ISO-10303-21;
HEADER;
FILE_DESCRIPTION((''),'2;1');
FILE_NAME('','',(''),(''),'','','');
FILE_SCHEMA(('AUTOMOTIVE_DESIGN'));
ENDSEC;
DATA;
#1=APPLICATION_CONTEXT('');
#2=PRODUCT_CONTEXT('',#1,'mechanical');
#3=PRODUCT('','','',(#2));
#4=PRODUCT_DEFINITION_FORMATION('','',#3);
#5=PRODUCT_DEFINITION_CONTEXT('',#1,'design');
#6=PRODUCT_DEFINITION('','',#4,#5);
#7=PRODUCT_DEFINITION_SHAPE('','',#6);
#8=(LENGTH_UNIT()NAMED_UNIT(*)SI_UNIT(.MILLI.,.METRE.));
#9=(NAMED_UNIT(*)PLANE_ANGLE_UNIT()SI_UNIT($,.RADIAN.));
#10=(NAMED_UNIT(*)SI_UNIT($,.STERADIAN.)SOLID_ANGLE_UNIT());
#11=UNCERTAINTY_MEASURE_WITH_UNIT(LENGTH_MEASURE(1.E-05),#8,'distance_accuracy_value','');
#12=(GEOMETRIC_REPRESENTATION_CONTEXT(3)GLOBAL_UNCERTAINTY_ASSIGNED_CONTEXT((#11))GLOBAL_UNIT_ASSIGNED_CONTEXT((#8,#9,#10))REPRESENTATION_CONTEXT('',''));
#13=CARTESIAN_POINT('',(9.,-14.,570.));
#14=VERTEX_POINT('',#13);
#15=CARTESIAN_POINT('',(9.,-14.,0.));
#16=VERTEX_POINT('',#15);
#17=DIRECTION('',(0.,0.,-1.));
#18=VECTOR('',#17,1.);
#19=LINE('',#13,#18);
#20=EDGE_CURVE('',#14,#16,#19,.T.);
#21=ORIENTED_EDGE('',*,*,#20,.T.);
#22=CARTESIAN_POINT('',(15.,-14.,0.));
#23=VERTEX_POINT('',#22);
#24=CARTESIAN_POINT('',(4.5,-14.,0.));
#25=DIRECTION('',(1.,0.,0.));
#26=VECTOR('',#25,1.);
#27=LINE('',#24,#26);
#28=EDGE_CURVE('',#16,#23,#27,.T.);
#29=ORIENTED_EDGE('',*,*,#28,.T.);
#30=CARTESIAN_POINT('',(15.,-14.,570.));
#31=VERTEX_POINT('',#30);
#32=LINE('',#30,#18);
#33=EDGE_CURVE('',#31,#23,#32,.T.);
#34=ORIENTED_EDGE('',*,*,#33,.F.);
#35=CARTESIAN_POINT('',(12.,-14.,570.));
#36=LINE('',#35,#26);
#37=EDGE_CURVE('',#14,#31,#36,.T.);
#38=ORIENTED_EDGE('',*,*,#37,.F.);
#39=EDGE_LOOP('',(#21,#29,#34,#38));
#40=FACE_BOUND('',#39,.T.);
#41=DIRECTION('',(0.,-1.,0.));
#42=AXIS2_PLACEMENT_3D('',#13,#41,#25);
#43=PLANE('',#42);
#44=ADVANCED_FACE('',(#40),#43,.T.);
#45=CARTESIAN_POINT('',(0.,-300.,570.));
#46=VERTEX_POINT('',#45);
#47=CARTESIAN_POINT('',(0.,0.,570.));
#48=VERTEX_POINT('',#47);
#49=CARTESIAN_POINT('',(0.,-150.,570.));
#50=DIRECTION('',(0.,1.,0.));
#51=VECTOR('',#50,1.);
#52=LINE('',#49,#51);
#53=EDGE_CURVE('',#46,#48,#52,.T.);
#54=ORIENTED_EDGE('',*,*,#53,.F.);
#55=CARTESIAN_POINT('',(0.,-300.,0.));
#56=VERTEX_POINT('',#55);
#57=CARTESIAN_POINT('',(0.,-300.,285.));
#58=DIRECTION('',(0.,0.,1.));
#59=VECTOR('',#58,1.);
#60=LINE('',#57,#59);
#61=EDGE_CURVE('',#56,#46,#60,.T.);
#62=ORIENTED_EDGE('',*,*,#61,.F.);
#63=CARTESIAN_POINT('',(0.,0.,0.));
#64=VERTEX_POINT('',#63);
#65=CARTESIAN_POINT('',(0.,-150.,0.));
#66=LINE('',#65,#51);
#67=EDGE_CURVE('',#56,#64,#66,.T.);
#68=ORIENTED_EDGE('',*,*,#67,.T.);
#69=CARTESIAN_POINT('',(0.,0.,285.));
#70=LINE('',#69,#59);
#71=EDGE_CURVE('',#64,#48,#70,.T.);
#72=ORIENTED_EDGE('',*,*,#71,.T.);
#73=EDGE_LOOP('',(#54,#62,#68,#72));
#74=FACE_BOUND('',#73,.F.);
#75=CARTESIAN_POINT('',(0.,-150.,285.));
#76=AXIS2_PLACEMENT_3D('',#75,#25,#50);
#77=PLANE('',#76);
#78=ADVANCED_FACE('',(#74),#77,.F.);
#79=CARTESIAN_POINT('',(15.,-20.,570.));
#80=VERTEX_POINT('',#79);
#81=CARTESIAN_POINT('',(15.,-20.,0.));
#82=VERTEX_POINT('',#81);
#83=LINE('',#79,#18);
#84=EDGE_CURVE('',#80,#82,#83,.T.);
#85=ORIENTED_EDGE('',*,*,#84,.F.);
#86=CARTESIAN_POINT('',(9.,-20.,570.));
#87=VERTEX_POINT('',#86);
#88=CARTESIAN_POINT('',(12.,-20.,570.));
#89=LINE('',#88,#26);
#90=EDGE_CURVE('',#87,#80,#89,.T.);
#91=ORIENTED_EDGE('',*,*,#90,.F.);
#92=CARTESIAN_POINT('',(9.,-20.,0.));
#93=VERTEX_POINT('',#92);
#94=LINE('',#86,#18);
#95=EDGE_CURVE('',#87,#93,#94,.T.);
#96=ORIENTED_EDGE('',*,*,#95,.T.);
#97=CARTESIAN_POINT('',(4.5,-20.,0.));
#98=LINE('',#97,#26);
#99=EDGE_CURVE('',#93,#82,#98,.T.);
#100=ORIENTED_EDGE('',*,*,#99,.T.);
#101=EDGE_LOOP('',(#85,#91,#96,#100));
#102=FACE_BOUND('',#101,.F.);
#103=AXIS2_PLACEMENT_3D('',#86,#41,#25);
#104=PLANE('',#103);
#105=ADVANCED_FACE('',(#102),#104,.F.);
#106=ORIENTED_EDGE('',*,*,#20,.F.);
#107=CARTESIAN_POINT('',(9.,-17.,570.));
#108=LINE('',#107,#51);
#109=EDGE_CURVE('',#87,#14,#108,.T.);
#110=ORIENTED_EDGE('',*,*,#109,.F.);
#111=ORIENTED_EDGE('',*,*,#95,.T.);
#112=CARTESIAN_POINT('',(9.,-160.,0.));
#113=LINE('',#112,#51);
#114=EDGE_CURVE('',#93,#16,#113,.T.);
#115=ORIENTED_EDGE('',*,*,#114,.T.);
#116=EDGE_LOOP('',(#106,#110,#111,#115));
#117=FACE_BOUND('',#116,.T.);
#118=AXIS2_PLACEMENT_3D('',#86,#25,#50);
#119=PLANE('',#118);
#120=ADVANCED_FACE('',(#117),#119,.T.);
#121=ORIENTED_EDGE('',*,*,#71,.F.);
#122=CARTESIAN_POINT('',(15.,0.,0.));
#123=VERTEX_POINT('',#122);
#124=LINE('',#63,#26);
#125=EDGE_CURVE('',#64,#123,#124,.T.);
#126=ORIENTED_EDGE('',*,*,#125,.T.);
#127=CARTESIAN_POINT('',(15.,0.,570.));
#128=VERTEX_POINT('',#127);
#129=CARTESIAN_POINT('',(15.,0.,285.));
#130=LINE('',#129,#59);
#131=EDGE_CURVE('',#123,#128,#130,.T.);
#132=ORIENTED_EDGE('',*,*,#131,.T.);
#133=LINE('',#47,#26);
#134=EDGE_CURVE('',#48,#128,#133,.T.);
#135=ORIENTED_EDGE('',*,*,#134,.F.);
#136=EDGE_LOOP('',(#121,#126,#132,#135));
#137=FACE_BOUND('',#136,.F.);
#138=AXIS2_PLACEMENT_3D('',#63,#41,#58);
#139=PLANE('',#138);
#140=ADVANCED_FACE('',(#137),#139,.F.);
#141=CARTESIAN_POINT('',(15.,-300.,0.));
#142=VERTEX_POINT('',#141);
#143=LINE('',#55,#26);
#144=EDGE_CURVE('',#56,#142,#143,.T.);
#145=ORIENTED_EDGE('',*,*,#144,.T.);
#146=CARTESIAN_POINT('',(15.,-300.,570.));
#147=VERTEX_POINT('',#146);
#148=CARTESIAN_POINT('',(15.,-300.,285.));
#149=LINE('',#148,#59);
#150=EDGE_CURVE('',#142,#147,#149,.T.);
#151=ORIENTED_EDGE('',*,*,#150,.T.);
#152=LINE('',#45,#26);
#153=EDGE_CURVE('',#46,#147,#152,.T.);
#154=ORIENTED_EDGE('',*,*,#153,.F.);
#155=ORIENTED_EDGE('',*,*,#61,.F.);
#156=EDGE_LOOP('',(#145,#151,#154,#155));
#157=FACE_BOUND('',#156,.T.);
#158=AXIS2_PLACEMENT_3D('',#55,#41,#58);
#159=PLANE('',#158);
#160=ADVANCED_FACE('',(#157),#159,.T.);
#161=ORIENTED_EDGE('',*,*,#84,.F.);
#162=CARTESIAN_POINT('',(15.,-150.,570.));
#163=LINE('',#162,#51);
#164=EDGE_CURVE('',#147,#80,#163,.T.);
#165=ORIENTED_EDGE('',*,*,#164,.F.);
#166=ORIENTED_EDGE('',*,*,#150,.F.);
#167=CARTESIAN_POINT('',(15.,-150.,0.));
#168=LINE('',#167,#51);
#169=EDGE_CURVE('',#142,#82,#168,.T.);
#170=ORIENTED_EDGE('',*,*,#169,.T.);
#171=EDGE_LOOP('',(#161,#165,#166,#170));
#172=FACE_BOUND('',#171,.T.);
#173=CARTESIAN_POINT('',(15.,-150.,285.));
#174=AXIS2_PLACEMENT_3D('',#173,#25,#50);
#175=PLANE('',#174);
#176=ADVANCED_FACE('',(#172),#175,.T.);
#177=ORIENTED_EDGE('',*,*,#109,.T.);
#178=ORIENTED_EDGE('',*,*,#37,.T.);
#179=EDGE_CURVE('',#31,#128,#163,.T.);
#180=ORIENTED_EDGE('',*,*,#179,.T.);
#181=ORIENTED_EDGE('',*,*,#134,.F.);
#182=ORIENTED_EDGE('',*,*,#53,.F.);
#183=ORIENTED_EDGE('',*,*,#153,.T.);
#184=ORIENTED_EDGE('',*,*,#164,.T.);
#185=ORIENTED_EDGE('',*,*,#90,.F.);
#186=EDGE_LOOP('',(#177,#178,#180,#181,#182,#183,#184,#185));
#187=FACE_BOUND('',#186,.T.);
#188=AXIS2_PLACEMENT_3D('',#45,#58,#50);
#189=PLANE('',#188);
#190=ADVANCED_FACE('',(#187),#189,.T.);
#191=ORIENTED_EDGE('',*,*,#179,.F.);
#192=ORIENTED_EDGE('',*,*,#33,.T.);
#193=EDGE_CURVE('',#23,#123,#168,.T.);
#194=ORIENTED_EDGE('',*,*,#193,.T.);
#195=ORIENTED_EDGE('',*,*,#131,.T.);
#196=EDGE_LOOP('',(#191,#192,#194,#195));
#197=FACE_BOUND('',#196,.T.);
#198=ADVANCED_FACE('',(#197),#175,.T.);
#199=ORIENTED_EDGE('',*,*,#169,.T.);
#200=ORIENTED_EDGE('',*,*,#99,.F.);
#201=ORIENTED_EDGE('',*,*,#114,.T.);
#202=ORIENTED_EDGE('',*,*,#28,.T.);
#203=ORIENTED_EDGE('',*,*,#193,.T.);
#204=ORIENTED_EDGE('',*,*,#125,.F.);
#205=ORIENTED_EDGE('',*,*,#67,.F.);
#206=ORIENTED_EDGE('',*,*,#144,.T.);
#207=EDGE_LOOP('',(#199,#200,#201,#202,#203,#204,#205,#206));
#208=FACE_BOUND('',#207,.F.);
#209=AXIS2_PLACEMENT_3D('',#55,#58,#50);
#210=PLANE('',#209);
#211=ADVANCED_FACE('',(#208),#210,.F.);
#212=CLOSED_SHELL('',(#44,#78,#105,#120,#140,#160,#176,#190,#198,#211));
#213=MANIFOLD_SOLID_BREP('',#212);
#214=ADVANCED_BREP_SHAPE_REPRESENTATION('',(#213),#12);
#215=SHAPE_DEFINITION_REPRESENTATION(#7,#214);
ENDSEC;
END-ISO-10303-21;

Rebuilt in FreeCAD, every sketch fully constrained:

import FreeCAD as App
import Part
import Sketcher

V = App.Vector
Q = App.Units.Quantity

doc = App.newDocument("Part")
params = doc.addObject("Spreadsheet::Sheet", "Params")
for row, (alias, value) in enumerate([
    ("sketch1_width", "300 mm"),
    ("sketch1_height", "570 mm"),
    ("pad1_length", "15 mm"),
    ("sketch2_width", "6 mm"),
    ("pocket1_length", "600 mm"),
], start=1):
    params.set(f"A{row}", alias)
    params.set(f"B{row}", "=" + value)
    params.setAlias(f"B{row}", alias)

body = doc.addObject("PartDesign::Body", "Body")

# Sketch on YZ plane
sketch1 = doc.addObject("Sketcher::SketchObject", "Sketch")
body.addObject(sketch1)
sketch1.AttachmentSupport = (doc.YZ_Plane, [""])
sketch1.MapMode = "FlatFace"
sketch1.addGeometry([
    Part.LineSegment(V(-300, 570, 0), V(-300, 0, 0)),
    Part.LineSegment(V(-300, 0, 0), V(0, 0, 0)),
    Part.LineSegment(V(0, 0, 0), V(0, 570, 0)),
    Part.LineSegment(V(0, 570, 0), V(-300, 570, 0)),
], False)
sketch1.addConstraint([
    Sketcher.Constraint("Coincident", 0, 2, 1, 1),
    Sketcher.Constraint("Coincident", 1, 2, 2, 1),
    Sketcher.Constraint("Coincident", 2, 2, 3, 1),
    Sketcher.Constraint("Coincident", 3, 2, 0, 1),
    Sketcher.Constraint("Vertical", 0),
    Sketcher.Constraint("Horizontal", 1),
    Sketcher.Constraint("Vertical", 2),
    Sketcher.Constraint("Horizontal", 3),
    Sketcher.Constraint("Coincident", 1, 2, -1, 1),
    Sketcher.Constraint("DistanceX", 1, 1, 1, 2, Q("300 mm")),
    Sketcher.Constraint("DistanceY", 0, 2, 0, 1, Q("570 mm")),
])
sketch1.setExpression("Constraints[9]", "Params.sketch1_width")
sketch1.setExpression("Constraints[10]", "Params.sketch1_height")
pad1 = doc.addObject("PartDesign::Pad", "Pad")
body.addObject(pad1)
pad1.Profile = sketch1
pad1.setExpression("Length", "Params.pad1_length")

# Sketch on XY plane
sketch2 = doc.addObject("Sketcher::SketchObject", "Sketch001")
body.addObject(sketch2)
sketch2.AttachmentSupport = (doc.XY_Plane, [""])
sketch2.MapMode = "FlatFace"
sketch2.AttachmentOffset = App.Placement(V(0, 0, 570), App.Rotation())
sketch2.addGeometry([
    Part.LineSegment(V(9, -14, 0), V(9, -20, 0)),
    Part.LineSegment(V(9, -20, 0), V(15, -20, 0)),
    Part.LineSegment(V(15, -20, 0), V(15, -14, 0)),
    Part.LineSegment(V(15, -14, 0), V(9, -14, 0)),
], False)
sketch2.addConstraint([
    Sketcher.Constraint("Coincident", 0, 2, 1, 1),
    Sketcher.Constraint("Coincident", 1, 2, 2, 1),
    Sketcher.Constraint("Coincident", 2, 2, 3, 1),
    Sketcher.Constraint("Coincident", 3, 2, 0, 1),
    Sketcher.Constraint("Vertical", 0),
    Sketcher.Constraint("Horizontal", 1),
    Sketcher.Constraint("Vertical", 2),
    Sketcher.Constraint("Horizontal", 3),
    Sketcher.Constraint("Equal", 3, 0),
    Sketcher.Constraint("DistanceX", 1, 1, 1, 2, Q("6 mm")),
    Sketcher.Constraint("DistanceX", -1, 1, 0, 2, Q("9 mm")),
    Sketcher.Constraint("DistanceY", 0, 2, -1, 1, Q("20 mm")),
])
sketch2.setExpression("Constraints[9]", "Params.sketch2_width")
pocket1 = doc.addObject("PartDesign::Pocket", "Pocket")
body.addObject(pocket1)
pocket1.Profile = sketch2
pocket1.setExpression("Length", "Params.pocket1_length")

doc.recompute()
